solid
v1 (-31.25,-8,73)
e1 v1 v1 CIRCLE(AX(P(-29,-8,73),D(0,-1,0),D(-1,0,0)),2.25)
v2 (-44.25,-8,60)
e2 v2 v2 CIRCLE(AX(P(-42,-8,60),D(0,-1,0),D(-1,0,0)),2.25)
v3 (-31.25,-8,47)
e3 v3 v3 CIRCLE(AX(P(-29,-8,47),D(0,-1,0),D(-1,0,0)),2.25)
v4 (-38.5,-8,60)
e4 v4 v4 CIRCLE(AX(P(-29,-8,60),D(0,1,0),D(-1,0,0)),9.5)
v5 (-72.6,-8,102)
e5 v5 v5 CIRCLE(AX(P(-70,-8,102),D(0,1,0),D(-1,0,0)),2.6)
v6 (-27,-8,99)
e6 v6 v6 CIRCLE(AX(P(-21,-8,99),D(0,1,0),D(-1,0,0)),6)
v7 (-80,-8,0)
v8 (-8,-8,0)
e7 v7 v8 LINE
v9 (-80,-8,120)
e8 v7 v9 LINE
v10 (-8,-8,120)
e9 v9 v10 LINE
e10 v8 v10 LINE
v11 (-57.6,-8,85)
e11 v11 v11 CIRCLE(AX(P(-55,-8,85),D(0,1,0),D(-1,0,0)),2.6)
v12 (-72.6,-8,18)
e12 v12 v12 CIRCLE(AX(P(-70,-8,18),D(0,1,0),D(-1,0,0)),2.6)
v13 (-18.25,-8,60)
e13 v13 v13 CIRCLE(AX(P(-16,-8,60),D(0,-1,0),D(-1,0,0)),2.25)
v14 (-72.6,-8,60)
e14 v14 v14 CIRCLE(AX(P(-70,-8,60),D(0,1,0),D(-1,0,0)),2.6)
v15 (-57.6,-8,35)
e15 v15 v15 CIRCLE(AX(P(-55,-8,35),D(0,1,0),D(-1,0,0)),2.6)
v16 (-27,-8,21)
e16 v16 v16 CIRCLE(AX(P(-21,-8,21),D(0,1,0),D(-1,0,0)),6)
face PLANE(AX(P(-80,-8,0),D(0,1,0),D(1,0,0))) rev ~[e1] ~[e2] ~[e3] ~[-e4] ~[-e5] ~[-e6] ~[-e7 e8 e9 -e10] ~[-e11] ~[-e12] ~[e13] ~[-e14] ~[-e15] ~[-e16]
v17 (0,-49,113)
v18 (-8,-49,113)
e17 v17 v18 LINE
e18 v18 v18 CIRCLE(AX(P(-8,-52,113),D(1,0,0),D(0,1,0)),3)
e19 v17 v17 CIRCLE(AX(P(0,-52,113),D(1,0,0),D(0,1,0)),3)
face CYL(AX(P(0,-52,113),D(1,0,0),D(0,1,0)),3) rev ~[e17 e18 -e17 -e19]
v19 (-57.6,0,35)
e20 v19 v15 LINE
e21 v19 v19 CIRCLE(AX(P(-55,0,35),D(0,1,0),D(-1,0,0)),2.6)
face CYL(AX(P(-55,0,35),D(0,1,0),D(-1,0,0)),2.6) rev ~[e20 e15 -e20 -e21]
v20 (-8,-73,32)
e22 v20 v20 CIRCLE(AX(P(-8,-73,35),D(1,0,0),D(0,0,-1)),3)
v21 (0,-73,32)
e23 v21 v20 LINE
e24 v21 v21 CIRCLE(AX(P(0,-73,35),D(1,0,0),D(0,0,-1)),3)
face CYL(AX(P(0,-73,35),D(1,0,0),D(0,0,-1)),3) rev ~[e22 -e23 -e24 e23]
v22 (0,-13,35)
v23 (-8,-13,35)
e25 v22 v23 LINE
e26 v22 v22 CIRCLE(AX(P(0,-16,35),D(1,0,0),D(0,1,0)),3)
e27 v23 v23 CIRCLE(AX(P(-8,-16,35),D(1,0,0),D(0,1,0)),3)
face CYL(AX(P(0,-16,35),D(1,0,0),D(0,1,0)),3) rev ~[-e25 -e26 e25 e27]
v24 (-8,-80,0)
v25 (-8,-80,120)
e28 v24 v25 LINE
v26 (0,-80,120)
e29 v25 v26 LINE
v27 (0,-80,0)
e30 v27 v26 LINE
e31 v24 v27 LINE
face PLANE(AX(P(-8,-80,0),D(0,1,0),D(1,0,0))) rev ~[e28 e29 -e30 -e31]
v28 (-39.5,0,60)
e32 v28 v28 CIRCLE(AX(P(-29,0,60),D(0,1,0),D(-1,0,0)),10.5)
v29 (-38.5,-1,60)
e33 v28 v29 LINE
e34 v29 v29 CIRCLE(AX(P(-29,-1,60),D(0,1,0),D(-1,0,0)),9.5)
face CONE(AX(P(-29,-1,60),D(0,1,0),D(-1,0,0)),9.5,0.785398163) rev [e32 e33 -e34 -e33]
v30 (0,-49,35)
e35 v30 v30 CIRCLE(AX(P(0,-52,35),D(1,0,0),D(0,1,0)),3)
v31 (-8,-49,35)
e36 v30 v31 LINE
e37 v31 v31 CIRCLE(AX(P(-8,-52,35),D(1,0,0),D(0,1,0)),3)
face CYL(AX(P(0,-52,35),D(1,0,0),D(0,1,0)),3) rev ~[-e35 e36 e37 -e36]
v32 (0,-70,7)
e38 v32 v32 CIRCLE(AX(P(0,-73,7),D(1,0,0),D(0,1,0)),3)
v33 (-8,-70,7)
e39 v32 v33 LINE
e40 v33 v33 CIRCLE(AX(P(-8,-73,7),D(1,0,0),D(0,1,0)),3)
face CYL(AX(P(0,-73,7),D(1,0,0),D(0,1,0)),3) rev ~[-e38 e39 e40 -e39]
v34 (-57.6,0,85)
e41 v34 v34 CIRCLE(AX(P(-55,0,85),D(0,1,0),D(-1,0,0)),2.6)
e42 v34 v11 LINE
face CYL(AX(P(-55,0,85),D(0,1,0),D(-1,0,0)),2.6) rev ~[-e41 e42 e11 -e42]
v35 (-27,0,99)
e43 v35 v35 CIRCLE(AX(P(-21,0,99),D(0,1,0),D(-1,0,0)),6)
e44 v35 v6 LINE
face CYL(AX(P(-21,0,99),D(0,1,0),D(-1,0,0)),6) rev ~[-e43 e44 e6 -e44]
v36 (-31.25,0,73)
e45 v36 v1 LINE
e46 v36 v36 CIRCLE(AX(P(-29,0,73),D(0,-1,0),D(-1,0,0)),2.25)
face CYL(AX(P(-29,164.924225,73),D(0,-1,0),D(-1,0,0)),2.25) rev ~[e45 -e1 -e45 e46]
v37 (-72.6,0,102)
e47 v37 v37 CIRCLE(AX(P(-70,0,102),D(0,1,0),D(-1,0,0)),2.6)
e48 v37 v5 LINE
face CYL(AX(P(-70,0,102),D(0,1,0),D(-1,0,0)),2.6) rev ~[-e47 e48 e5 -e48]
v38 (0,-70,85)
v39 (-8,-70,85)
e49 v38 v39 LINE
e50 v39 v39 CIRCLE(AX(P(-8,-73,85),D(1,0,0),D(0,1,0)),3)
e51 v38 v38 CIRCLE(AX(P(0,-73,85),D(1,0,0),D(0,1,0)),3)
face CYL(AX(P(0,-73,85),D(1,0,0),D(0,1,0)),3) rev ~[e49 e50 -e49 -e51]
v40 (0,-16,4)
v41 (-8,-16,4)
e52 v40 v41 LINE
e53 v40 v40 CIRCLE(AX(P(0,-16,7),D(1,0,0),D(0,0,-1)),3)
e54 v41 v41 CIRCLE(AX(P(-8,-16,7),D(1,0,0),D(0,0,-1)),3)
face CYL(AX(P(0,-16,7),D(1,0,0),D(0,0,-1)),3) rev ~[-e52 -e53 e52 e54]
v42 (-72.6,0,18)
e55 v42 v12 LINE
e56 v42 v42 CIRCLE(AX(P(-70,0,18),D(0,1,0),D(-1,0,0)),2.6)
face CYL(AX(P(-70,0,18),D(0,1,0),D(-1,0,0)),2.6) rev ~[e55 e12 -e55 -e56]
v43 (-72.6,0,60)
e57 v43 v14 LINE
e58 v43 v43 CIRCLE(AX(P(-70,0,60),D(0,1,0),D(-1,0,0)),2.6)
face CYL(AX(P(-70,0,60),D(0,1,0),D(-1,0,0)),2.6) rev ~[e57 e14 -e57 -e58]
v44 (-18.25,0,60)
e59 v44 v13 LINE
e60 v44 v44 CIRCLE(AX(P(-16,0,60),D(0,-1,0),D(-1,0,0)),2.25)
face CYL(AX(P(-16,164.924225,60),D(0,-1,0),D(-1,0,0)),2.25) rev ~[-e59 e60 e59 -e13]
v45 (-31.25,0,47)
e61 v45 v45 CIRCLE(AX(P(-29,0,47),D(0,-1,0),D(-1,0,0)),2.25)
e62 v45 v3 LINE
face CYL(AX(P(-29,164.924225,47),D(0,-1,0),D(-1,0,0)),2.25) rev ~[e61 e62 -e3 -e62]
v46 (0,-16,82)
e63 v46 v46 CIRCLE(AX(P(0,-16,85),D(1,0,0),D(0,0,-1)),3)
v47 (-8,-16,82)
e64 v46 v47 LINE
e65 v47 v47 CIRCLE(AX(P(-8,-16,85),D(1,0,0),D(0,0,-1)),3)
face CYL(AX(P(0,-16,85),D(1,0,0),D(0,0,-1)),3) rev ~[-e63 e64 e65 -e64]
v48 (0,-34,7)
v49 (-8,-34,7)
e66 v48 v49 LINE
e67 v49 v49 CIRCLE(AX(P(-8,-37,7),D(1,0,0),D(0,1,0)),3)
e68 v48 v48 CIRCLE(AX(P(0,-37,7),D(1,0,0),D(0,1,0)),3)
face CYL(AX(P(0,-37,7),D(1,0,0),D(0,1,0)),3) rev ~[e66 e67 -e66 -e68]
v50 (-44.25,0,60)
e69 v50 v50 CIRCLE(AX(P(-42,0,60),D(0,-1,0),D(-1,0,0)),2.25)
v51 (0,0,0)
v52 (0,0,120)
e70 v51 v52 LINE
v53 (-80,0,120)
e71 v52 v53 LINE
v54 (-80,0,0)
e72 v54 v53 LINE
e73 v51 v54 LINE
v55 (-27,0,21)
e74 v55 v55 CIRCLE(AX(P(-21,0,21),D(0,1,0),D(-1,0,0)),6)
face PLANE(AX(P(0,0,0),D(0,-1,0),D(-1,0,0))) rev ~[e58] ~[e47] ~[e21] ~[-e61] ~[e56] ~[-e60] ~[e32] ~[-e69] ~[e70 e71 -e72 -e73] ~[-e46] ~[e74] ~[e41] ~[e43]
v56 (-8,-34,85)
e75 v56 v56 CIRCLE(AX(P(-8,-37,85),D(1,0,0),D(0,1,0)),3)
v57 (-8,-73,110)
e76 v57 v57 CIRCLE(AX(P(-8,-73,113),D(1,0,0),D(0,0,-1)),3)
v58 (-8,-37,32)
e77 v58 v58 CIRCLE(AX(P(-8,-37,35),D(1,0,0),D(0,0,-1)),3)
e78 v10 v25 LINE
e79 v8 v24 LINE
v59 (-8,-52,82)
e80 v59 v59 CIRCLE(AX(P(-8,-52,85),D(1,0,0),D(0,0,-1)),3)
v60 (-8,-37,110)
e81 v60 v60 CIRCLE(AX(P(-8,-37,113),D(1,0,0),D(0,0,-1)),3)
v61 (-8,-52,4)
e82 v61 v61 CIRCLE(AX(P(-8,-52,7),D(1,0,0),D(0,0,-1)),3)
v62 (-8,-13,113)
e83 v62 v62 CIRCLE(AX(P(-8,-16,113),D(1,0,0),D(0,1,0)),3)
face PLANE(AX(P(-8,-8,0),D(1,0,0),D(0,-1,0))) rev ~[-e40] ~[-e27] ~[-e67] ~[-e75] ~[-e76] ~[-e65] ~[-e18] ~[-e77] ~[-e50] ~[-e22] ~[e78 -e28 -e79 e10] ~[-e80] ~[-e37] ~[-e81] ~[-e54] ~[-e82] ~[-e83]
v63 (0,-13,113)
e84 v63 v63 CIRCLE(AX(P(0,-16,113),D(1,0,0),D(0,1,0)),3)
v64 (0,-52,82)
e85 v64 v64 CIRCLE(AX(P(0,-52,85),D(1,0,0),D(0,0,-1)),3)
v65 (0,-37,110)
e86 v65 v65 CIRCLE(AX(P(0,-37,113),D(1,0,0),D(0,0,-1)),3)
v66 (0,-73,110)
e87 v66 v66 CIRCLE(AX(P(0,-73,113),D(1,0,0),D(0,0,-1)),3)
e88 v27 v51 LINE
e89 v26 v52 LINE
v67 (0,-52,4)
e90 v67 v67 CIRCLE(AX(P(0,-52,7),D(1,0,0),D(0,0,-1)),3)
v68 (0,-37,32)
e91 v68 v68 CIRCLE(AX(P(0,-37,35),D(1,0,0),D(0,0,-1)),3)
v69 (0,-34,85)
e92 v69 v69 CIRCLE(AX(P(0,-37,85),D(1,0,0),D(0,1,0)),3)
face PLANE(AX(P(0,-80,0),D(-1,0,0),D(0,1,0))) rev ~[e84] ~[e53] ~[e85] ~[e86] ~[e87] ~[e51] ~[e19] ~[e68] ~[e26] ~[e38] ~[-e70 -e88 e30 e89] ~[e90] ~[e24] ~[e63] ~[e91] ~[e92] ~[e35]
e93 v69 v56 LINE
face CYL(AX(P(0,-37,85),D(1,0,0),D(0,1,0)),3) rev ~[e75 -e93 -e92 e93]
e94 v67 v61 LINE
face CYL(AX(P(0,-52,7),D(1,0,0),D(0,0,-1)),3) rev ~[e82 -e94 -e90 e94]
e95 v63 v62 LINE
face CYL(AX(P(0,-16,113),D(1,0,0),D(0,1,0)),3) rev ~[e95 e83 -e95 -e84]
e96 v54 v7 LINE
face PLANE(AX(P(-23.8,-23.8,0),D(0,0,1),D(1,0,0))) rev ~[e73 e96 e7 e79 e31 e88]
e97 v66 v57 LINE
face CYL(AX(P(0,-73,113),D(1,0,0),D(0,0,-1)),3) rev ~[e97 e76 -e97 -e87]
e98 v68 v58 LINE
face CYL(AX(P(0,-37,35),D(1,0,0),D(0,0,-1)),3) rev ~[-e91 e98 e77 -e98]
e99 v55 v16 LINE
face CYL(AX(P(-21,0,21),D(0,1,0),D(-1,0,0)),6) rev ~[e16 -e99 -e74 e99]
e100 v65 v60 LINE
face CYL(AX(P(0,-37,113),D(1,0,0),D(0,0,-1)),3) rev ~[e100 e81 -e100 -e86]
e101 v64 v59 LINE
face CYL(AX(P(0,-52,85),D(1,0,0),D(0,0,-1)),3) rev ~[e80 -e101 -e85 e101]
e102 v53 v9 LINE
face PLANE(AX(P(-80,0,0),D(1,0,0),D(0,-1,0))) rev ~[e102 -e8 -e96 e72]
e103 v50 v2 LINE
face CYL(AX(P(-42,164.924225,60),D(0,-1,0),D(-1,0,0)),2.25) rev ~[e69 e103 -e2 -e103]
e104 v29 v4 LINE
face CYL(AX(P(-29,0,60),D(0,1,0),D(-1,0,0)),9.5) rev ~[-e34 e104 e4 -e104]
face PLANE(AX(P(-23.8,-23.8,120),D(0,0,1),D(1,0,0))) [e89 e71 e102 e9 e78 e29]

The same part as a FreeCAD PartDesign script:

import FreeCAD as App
import Part
import Sketcher
Q = App.Units.Quantity


def edges_at(feature, points):
    """Names of the edges that pass closest to the given points."""
    edges = feature.Shape.Edges
    near = lambda p: min(range(len(edges)), key=lambda i: edges[i].distToShape(Part.Vertex(*p))[0])
    return sorted({f"Edge{near(p) + 1}" for p in points})


def add_polygon(sketch, points):
    """Adds a closed chain of lines whose ends are joined by coincident constraints."""
    first, n = sketch.GeometryCount, len(points)
    for a, b in zip(points, points[1:] + points[:1]):
        sketch.addGeometry(Part.LineSegment(App.Vector(*a, 0), App.Vector(*b, 0)), False)
    for i in range(n):
        sketch.addConstraint(Sketcher.Constraint("Coincident", first + i, 2, first + (i + 1) % n, 1))

doc = App.newDocument("Part")
body = doc.addObject("PartDesign::Body", "Body")

sketch1 = body.newObject("Sketcher::SketchObject", "Sketch")
sketch1.AttachmentSupport = (doc.getObject("XY_Plane"), [""])
sketch1.MapMode = "FlatFace"
add_polygon(sketch1, [(0, 0), (-80, 0), (-80, -8), (-8, -8), (-8, -80), (0, -80)])
sketch1.addConstraint([
    Sketcher.Constraint("Horizontal", 0),
    Sketcher.Constraint("Vertical", 1),
    Sketcher.Constraint("Horizontal", 2),
    Sketcher.Constraint("Vertical", 3),
    Sketcher.Constraint("Horizontal", 4),
    Sketcher.Constraint("Vertical", 5),
    Sketcher.Constraint("Coincident", 5, 2, -1, 1),
    Sketcher.Constraint("Equal", 4, 1),
    Sketcher.Constraint("Equal", 2, 3),
    Sketcher.Constraint("DistanceX", 0, 2, 0, 1, Q("80 mm")),
    Sketcher.Constraint("DistanceX", 2, 1, 2, 2, Q("72 mm")),
])
pad1 = body.newObject("PartDesign::Pad", "Pad")
pad1.Profile = sketch1
pad1.Length = 120

sketch2 = body.newObject("Sketcher::SketchObject", "Sketch001")
sketch2.AttachmentSupport = (doc.getObject("XZ_Plane"), [""])
sketch2.MapMode = "FlatFace"
sketch2.addGeometry(Part.Circle(App.Vector(-21, 21, 0), App.Vector(0, 0, 1), 6), False)
sketch2.addConstraint([
    Sketcher.Constraint("Diameter", 0, Q("12 mm")),
    Sketcher.Constraint("DistanceX", 0, 3, -1, 1, Q("21 mm")),
    Sketcher.Constraint("DistanceY", -1, 1, 0, 3, Q("21 mm")),
])
pocket1 = body.newObject("PartDesign::Pocket", "Pocket")
pocket1.Profile = sketch2
pocket1.Type = "UpToFirst"
pocket1.Reversed = True

sketch3 = body.newObject("Sketcher::SketchObject", "Sketch002")
sketch3.AttachmentSupport = (doc.getObject("XZ_Plane"), [""])
sketch3.MapMode = "FlatFace"
sketch3.addGeometry(Part.Circle(App.Vector(-21, 99, 0), App.Vector(0, 0, 1), 6), False)
sketch3.addConstraint([
    Sketcher.Constraint("Diameter", 0, Q("12 mm")),
    Sketcher.Constraint("DistanceX", 0, 3, -1, 1, Q("21 mm")),
    Sketcher.Constraint("DistanceY", -1, 1, 0, 3, Q("99 mm")),
])
pocket2 = body.newObject("PartDesign::Pocket", "Pocket001")
pocket2.Profile = sketch3
pocket2.Type = "UpToFirst"
pocket2.Reversed = True

sketch4 = body.newObject("Sketcher::SketchObject", "Sketch003")
sketch4.AttachmentSupport = (doc.getObject("XZ_Plane"), [""])
sketch4.MapMode = "FlatFace"
sketch4.addGeometry(Part.Circle(App.Vector(-29, 60, 0), App.Vector(0, 0, 1), 9.5), False)
sketch4.addConstraint([
    Sketcher.Constraint("Diameter", 0, Q("19 mm")),
    Sketcher.Constraint("DistanceX", 0, 3, -1, 1, Q("29 mm")),
    Sketcher.Constraint("DistanceY", -1, 1, 0, 3, Q("60 mm")),
])
pocket3 = body.newObject("PartDesign::Pocket", "Pocket002")
pocket3.Profile = sketch4
pocket3.Type = "UpToFirst"
pocket3.Reversed = True

sketch5 = body.newObject("Sketcher::SketchObject", "Sketch004")
sketch5.AttachmentSupport = (doc.getObject("XZ_Plane"), [""])
sketch5.MapMode = "FlatFace"
sketch5.addGeometry([
    Part.Circle(App.Vector(-29, 47, 0), App.Vector(0, 0, 1), 2.25),
    Part.Circle(App.Vector(-42, 60, 0), App.Vector(0, 0, 1), 2.25),
    Part.Circle(App.Vector(-29, 73, 0), App.Vector(0, 0, 1), 2.25),
    Part.Circle(App.Vector(-16, 60, 0), App.Vector(0, 0, 1), 2.25),
    Part.Circle(App.Vector(-29, 60, 0), App.Vector(0, 0, 1), 2.25),
], False)
sketch5.addConstraint([
    Sketcher.Constraint("Equal", 0, 1),
    Sketcher.Constraint("Equal", 1, 2),
    Sketcher.Constraint("Equal", 2, 3),
    Sketcher.Constraint("Equal", 3, 4),
    Sketcher.Constraint("Horizontal", 1, 3, 3, 3),
    Sketcher.Constraint("Horizontal", 3, 3, 4, 3),
    Sketcher.Constraint("Vertical", 0, 3, 2, 3),
    Sketcher.Constraint("Vertical", 2, 3, 4, 3),
    Sketcher.Constraint("Diameter", 0, Q("4.5 mm")),
    Sketcher.Constraint("DistanceX", 0, 3, -1, 1, Q("29 mm")),
    Sketcher.Constraint("DistanceY", -1, 1, 0, 3, Q("47 mm")),
    Sketcher.Constraint("DistanceX", 1, 3, -1, 1, Q("42 mm")),
    Sketcher.Constraint("DistanceY", -1, 1, 1, 3, Q("60 mm")),
    Sketcher.Constraint("DistanceY", -1, 1, 2, 3, Q("73 mm")),
    Sketcher.Constraint("DistanceX", 3, 3, -1, 1, Q("16 mm")),
])
doc.recompute()
hole = body.newObject("PartDesign::Hole", "Hole")
hole.Profile = sketch5
hole.ThreadType = "None"
hole.Diameter = 4.5
hole.DepthType = "ThroughAll"
hole.Reversed = True

sketch6 = body.newObject("Sketcher::SketchObject", "Sketch005")
sketch6.AttachmentSupport = (doc.getObject("YZ_Plane"), [""])
sketch6.MapMode = "FlatFace"
sketch6.addGeometry([
    Part.Circle(App.Vector(-73, 35, 0), App.Vector(0, 0, 1), 3),
    Part.Circle(App.Vector(-73, 7, 0), App.Vector(0, 0, 1), 3),
    Part.Circle(App.Vector(-73, 113, 0), App.Vector(0, 0, 1), 3),
    Part.Circle(App.Vector(-73, 85, 0), App.Vector(0, 0, 1), 3),
    Part.Circle(App.Vector(-52, 85, 0), App.Vector(0, 0, 1), 3),
    Part.Circle(App.Vector(-52, 113, 0), App.Vector(0, 0, 1), 3),
    Part.Circle(App.Vector(-52, 35, 0), App.Vector(0, 0, 1), 3),
    Part.Circle(App.Vector(-52, 7, 0), App.Vector(0, 0, 1), 3),
    Part.Circle(App.Vector(-16, 85, 0), App.Vector(0, 0, 1), 3),
    Part.Circle(App.Vector(-16, 113, 0), App.Vector(0, 0, 1), 3),
    Part.Circle(App.Vector(-37, 35, 0), App.Vector(0, 0, 1), 3),
    Part.Circle(App.Vector(-37, 7, 0), App.Vector(0, 0, 1), 3),
    Part.Circle(App.Vector(-16, 35, 0), App.Vector(0, 0, 1), 3),
    Part.Circle(App.Vector(-16, 7, 0), App.Vector(0, 0, 1), 3),
    Part.Circle(App.Vector(-37, 85, 0), App.Vector(0, 0, 1), 3),
    Part.Circle(App.Vector(-37, 113, 0), App.Vector(0, 0, 1), 3),
], False)
sketch6.addConstraint([
    Sketcher.Constraint("Equal", 0, 1),
    Sketcher.Constraint("Equal", 1, 2),
    Sketcher.Constraint("Equal", 2, 3),
    Sketcher.Constraint("Equal", 3, 4),
    Sketcher.Constraint("Equal", 4, 5),
    Sketcher.Constraint("Equal", 5, 6),
    Sketcher.Constraint("Equal", 6, 7),
    Sketcher.Constraint("Equal", 7, 8),
    Sketcher.Constraint("Equal", 8, 9),
    Sketcher.Constraint("Equal", 9, 10),
    Sketcher.Constraint("Equal", 10, 11),
    Sketcher.Constraint("Equal", 11, 12),
    Sketcher.Constraint("Equal", 12, 13),
    Sketcher.Constraint("Equal", 13, 14),
    Sketcher.Constraint("Equal", 14, 15),
    Sketcher.Constraint("Horizontal", 3, 3, 4, 3),
    Sketcher.Constraint("Horizontal", 2, 3, 5, 3),
    Sketcher.Constraint("Horizontal", 0, 3, 6, 3),
    Sketcher.Constraint("Horizontal", 1, 3, 7, 3),
    Sketcher.Constraint("Horizontal", 4, 3, 8, 3),
    Sketcher.Constraint("Horizontal", 5, 3, 9, 3),
    Sketcher.Constraint("Horizontal", 6, 3, 10, 3),
    Sketcher.Constraint("Horizontal", 7, 3, 11, 3),
    Sketcher.Constraint("Horizontal", 10, 3, 12, 3),
    Sketcher.Constraint("Horizontal", 11, 3, 13, 3),
    Sketcher.Constraint("Horizontal", 8, 3, 14, 3),
    Sketcher.Constraint("Horizontal", 9, 3, 15, 3),
    Sketcher.Constraint("Vertical", 0, 3, 1, 3),
    Sketcher.Constraint("Vertical", 1, 3, 2, 3),
    Sketcher.Constraint("Vertical", 2, 3, 3, 3),
    Sketcher.Constraint("Vertical", 4, 3, 5, 3),
    Sketcher.Constraint("Vertical", 5, 3, 6, 3),
    Sketcher.Constraint("Vertical", 6, 3, 7, 3),
    Sketcher.Constraint("Vertical", 8, 3, 9, 3),
    Sketcher.Constraint("Vertical", 10, 3, 11, 3),
    Sketcher.Constraint("Vertical", 9, 3, 12, 3),
    Sketcher.Constraint("Vertical", 12, 3, 13, 3),
    Sketcher.Constraint("Vertical", 11, 3, 14, 3),
    Sketcher.Constraint("Vertical", 14, 3, 15, 3),
    Sketcher.Constraint("Diameter", 0, Q("6 mm")),
    Sketcher.Constraint("DistanceX", 0, 3, -1, 1, Q("73 mm")),
    Sketcher.Constraint("DistanceY", -1, 1, 0, 3, Q("35 mm")),
    Sketcher.Constraint("DistanceY", -1, 1, 1, 3, Q("7 mm")),
    Sketcher.Constraint("DistanceY", -1, 1, 2, 3, Q("113 mm")),
    Sketcher.Constraint("DistanceY", -1, 1, 3, 3, Q("85 mm")),
    Sketcher.Constraint("DistanceX", 4, 3, -1, 1, Q("52 mm")),
    Sketcher.Constraint("DistanceX", 8, 3, -1, 1, Q("16 mm")),
    Sketcher.Constraint("DistanceX", 10, 3, -1, 1, Q("37 mm")),
])
pocket4 = body.newObject("PartDesign::Pocket", "Pocket003")
pocket4.Profile = sketch6
pocket4.Length = 10

sketch7 = body.newObject("Sketcher::SketchObject", "Sketch006")
sketch7.AttachmentSupport = (doc.getObject("XZ_Plane"), [""])
sketch7.MapMode = "FlatFace"
sketch7.addGeometry([
    Part.Circle(App.Vector(-70, 18, 0), App.Vector(0, 0, 1), 2.6),
    Part.Circle(App.Vector(-70, 60, 0), App.Vector(0, 0, 1), 2.6),
    Part.Circle(App.Vector(-70, 102, 0), App.Vector(0, 0, 1), 2.6),
    Part.Circle(App.Vector(-55, 35, 0), App.Vector(0, 0, 1), 2.6),
    Part.Circle(App.Vector(-55, 85, 0), App.Vector(0, 0, 1), 2.6),
], False)
sketch7.addConstraint([
    Sketcher.Constraint("Equal", 0, 1),
    Sketcher.Constraint("Equal", 1, 2),
    Sketcher.Constraint("Equal", 2, 3),
    Sketcher.Constraint("Equal", 3, 4),
    Sketcher.Constraint("Vertical", 0, 3, 1, 3),
    Sketcher.Constraint("Vertical", 1, 3, 2, 3),
    Sketcher.Constraint("Vertical", 3, 3, 4, 3),
    Sketcher.Constraint("Diameter", 0, Q("5.2 mm")),
    Sketcher.Constraint("DistanceX", 0, 3, -1, 1, Q("70 mm")),
    Sketcher.Constraint("DistanceY", -1, 1, 0, 3, Q("18 mm")),
    Sketcher.Constraint("DistanceY", -1, 1, 1, 3, Q("60 mm")),
    Sketcher.Constraint("DistanceY", -1, 1, 2, 3, Q("102 mm")),
    Sketcher.Constraint("DistanceX", 3, 3, -1, 1, Q("55 mm")),
    Sketcher.Constraint("DistanceY", -1, 1, 3, 3, Q("35 mm")),
    Sketcher.Constraint("DistanceY", -1, 1, 4, 3, Q("85 mm")),
])
pocket5 = body.newObject("PartDesign::Pocket", "Pocket004")
pocket5.Profile = sketch7
pocket5.Length = 10
pocket5.Reversed = True
doc.recompute()

chamfer = body.newObject("PartDesign::Chamfer", "Chamfer")
chamfer.Base = (pocket5, edges_at(pocket5, [(-19.5, 0, 60)]))
chamfer.Size = 1

doc.recompute()
